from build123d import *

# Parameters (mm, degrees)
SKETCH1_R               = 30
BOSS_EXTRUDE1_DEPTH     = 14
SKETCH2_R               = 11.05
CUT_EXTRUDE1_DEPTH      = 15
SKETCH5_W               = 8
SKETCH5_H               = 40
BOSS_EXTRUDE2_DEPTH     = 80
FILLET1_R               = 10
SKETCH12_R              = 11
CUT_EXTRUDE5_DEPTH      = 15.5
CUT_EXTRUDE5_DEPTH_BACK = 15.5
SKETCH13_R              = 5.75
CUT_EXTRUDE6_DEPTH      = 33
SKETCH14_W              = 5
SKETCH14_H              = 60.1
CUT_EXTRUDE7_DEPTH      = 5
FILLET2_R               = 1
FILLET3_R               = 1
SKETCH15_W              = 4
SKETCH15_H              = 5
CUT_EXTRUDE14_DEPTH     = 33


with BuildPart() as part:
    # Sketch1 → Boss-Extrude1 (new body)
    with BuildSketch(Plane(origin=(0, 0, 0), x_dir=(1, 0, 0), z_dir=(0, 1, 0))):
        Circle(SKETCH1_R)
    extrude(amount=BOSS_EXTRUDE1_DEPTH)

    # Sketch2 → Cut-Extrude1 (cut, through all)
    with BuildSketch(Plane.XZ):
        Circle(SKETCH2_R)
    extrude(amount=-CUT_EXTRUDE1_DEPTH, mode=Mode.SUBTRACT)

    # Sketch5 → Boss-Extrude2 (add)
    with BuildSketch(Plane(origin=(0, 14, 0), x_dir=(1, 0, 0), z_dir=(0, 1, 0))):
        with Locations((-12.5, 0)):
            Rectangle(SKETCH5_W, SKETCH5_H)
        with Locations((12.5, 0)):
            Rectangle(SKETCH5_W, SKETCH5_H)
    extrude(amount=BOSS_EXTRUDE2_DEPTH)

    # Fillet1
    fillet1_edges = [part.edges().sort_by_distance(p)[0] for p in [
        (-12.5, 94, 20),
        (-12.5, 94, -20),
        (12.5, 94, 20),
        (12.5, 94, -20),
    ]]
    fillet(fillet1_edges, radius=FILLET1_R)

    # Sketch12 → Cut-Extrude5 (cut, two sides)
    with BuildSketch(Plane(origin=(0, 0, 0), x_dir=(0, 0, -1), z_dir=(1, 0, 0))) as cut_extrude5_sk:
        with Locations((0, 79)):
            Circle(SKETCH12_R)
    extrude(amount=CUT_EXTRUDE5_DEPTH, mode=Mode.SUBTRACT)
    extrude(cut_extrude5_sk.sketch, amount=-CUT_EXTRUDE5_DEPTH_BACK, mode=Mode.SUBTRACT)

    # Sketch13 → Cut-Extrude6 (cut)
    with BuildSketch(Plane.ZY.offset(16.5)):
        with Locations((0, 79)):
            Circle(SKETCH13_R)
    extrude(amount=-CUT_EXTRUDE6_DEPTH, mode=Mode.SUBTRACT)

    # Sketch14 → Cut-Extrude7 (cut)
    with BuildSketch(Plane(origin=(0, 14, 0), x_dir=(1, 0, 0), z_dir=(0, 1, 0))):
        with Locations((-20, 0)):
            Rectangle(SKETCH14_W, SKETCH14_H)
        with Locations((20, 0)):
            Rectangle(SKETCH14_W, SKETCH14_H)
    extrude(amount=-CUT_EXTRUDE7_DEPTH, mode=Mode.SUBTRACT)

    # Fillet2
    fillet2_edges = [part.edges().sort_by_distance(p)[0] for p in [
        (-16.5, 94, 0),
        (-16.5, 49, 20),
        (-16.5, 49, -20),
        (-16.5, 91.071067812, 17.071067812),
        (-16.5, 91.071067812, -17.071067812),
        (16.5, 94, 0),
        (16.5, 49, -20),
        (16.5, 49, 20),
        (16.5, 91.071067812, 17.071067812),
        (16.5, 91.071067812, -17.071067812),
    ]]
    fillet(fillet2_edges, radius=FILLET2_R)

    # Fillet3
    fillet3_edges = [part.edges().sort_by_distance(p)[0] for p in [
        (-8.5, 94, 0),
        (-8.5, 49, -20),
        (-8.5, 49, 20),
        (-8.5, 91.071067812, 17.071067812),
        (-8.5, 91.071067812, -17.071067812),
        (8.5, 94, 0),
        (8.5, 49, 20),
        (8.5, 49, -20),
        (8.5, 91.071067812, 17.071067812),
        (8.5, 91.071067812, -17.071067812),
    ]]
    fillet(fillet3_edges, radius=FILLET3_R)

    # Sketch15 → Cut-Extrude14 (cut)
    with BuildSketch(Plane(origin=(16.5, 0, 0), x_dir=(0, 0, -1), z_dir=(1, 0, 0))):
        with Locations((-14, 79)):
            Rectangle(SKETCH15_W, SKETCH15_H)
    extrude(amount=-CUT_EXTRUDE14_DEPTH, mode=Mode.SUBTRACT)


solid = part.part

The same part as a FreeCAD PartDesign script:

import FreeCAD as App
import Part
import Sketcher
Q = App.Units.Quantity


def edges_at(feature, points):
    """Names of the edges that pass closest to the given points."""
    edges = feature.Shape.Edges
    near = lambda p: min(range(len(edges)), key=lambda i: edges[i].distToShape(Part.Vertex(*p))[0])
    return sorted({f"Edge{near(p) + 1}" for p in points})

doc = App.newDocument("Part")
params = doc.addObject("Spreadsheet::Sheet", "Params")
for row, (alias, value) in enumerate([
    ("sketch1_diameter", "60 mm"),
    ("pad1_length", "14 mm"),
    ("sketch2_diameter", "22.1 mm"),
    ("sketch3_width", "8 mm"),
    ("sketch3_height", "40 mm"),
    ("pad2_length", "80 mm"),
    ("fillet_radius", "10 mm"),
    ("sketch4_diameter", "22 mm"),
    ("pocket2_length", "15.5 mm"),
    ("pocket2_length2", "15.5 mm"),
    ("sketch5_diameter", "11.5 mm"),
    ("pocket3_length", "33 mm"),
    ("sketch6_width", "5 mm"),
    ("sketch6_height", "60.1 mm"),
    ("pocket4_length", "5 mm"),
    ("fillet2_radius", "1 mm"),
    ("fillet3_radius", "1 mm"),
    ("sketch7_width", "5 mm"),
    ("sketch7_height", "4 mm"),
    ("pocket5_length", "33 mm"),
], start=1):
    params.set(f"A{row}", alias)
    params.set(f"B{row}", "=" + value)
    params.setAlias(f"B{row}", alias)

body = doc.addObject("PartDesign::Body", "Body")

# Sketch on XZ plane
sketch1 = body.newObject("Sketcher::SketchObject", "Sketch")
sketch1.AttachmentSupport = (doc.getObject("XZ_Plane"), [""])
sketch1.MapMode = "FlatFace"
sketch1.addGeometry(Part.Circle(App.Vector(0, 0, 0), App.Vector(0, 0, 1), 30), False)
sketch1.addConstraint([
    Sketcher.Constraint("Coincident", 0, 3, -1, 1),
    Sketcher.Constraint("Diameter", 0, Q("60 mm")),
])
sketch1.setExpression("Constraints[1]", "Params.sketch1_diameter")
pad1 = body.newObject("PartDesign::Pad", "Pad")
pad1.Profile = sketch1
pad1.setExpression("Length", "Params.pad1_length")
pad1.Reversed = True

# Sketch on XZ plane
sketch2 = body.newObject("Sketcher::SketchObject", "Sketch001")
sketch2.AttachmentSupport = (doc.getObject("XZ_Plane"), [""])
sketch2.MapMode = "FlatFace"
sketch2.addGeometry(Part.Circle(App.Vector(0, 0, 0), App.Vector(0, 0, 1), 11), False)
sketch2.addConstraint([
    Sketcher.Constraint("Coincident", 0, 3, -1, 1),
    Sketcher.Constraint("Diameter", 0, Q("22.1 mm")),
])
sketch2.setExpression("Constraints[1]", "Params.sketch2_diameter")
pocket1 = body.newObject("PartDesign::Pocket", "Pocket")
pocket1.Profile = sketch2
pocket1.Type = "ThroughAll"

# Sketch on XZ plane
sketch3 = body.newObject("Sketcher::SketchObject", "Sketch002")
sketch3.AttachmentSupport = (doc.getObject("XZ_Plane"), [""])
sketch3.MapMode = "FlatFace"
sketch3.AttachmentOffset = App.Placement(App.Vector(0, 0, -14), App.Rotation())
sketch3.addGeometry([
    Part.LineSegment(App.Vector(-16, -20, 0), App.Vector(-16, 20, 0)),  # 0
    Part.LineSegment(App.Vector(-16, 20, 0), App.Vector(-8, 20, 0)),  # 1
    Part.LineSegment(App.Vector(-8, 20, 0), App.Vector(-8, -20, 0)),  # 2
    Part.LineSegment(App.Vector(-8, -20, 0), App.Vector(-16, -20, 0)),  # 3
    Part.LineSegment(App.Vector(8, -20, 0), App.Vector(8, 20, 0)),  # 4
    Part.LineSegment(App.Vector(8, 20, 0), App.Vector(16, 20, 0)),  # 5
    Part.LineSegment(App.Vector(16, 20, 0), App.Vector(16, -20, 0)),  # 6
    Part.LineSegment(App.Vector(16, -20, 0), App.Vector(8, -20, 0)),  # 7
], False)
sketch3.addConstraint([
    Sketcher.Constraint("Coincident", 0, 2, 1, 1),
    Sketcher.Constraint("Coincident", 1, 2, 2, 1),
    Sketcher.Constraint("Coincident", 2, 2, 3, 1),
    Sketcher.Constraint("Coincident", 3, 2, 0, 1),
    Sketcher.Constraint("Coincident", 4, 2, 5, 1),
    Sketcher.Constraint("Coincident", 5, 2, 6, 1),
    Sketcher.Constraint("Coincident", 6, 2, 7, 1),
    Sketcher.Constraint("Coincident", 7, 2, 4, 1),
    Sketcher.Constraint("Vertical", 0),
    Sketcher.Constraint("Horizontal", 1),
    Sketcher.Constraint("Vertical", 2),
    Sketcher.Constraint("Horizontal", 3),
    Sketcher.Constraint("Vertical", 4),
    Sketcher.Constraint("Horizontal", 5),
    Sketcher.Constraint("Vertical", 6),
    Sketcher.Constraint("Horizontal", 7),
    Sketcher.Constraint("Symmetric", 2, 2, 4, 2, -1, 1),
    Sketcher.Constraint("Symmetric", 0, 2, 6, 2, -1, 1),
    Sketcher.Constraint("Horizontal", 1, 2, 4, 2),
    Sketcher.Constraint("DistanceX", 1, 1, 1, 2, Q("8 mm")),
    Sketcher.Constraint("DistanceY", 0, 1, 0, 2, Q("40 mm")),
    Sketcher.Constraint("DistanceX", 1, 2, 4, 2, Q("17 mm")),
])
sketch3.setExpression("Constraints[19]", "Params.sketch3_width")
sketch3.setExpression("Constraints[20]", "Params.sketch3_height")
pad2 = body.newObject("PartDesign::Pad", "Pad001")
pad2.Profile = sketch3
pad2.setExpression("Length", "Params.pad2_length")
pad2.Reversed = True
doc.recompute()

fillet = body.newObject("PartDesign::Fillet", "Fillet")
fillet.Base = (pad2, edges_at(pad2, [
    (-12.5, 94, 20),
    (-12.5, 94, -20),
    (12.5, 94, 20),
    (12.5, 94, -20),
]))
fillet.setExpression("Radius", "Params.fillet_radius")

# Sketch on YZ plane
sketch4 = body.newObject("Sketcher::SketchObject", "Sketch003")
sketch4.AttachmentSupport = (doc.getObject("YZ_Plane"), [""])
sketch4.MapMode = "FlatFace"
sketch4.addGeometry(Part.Circle(App.Vector(79, 0, 0), App.Vector(0, 0, 1), 11), False)
sketch4.addConstraint([
    Sketcher.Constraint("PointOnObject", 0, 3, -1),
    Sketcher.Constraint("Diameter", 0, Q("22 mm")),
    Sketcher.Constraint("DistanceX", -1, 1, 0, 3, Q("79 mm")),
])
sketch4.setExpression("Constraints[1]", "Params.sketch4_diameter")
pocket2 = body.newObject("PartDesign::Pocket", "Pocket001")
pocket2.Profile = sketch4
pocket2.Type = "TwoLengths"
pocket2.setExpression("Length", "Params.pocket2_length")
pocket2.setExpression("Length2", "Params.pocket2_length2")
pocket2.Reversed = True

# Sketch on YZ plane
sketch5 = body.newObject("Sketcher::SketchObject", "Sketch004")
sketch5.AttachmentSupport = (doc.getObject("YZ_Plane"), [""])
sketch5.MapMode = "FlatFace"
sketch5.AttachmentOffset = App.Placement(App.Vector(0, 0, -16.5), App.Rotation())
sketch5.addGeometry(Part.Circle(App.Vector(79, 0, 0), App.Vector(0, 0, 1), 6), False)
sketch5.addConstraint([
    Sketcher.Constraint("PointOnObject", 0, 3, -1),
    Sketcher.Constraint("Diameter", 0, Q("11.5 mm")),
    Sketcher.Constraint("DistanceX", -1, 1, 0, 3, Q("79 mm")),
])
sketch5.setExpression("Constraints[1]", "Params.sketch5_diameter")
pocket3 = body.newObject("PartDesign::Pocket", "Pocket002")
pocket3.Profile = sketch5
pocket3.setExpression("Length", "Params.pocket3_length")
pocket3.Reversed = True

# Sketch on XZ plane
sketch6 = body.newObject("Sketcher::SketchObject", "Sketch005")
sketch6.AttachmentSupport = (doc.getObject("XZ_Plane"), [""])
sketch6.MapMode = "FlatFace"
sketch6.AttachmentOffset = App.Placement(App.Vector(0, 0, -14), App.Rotation())
sketch6.addGeometry([
    Part.LineSegment(App.Vector(-22, -30, 0), App.Vector(-22, 30, 0)),  # 0
    Part.LineSegment(App.Vector(-22, 30, 0), App.Vector(-18, 30, 0)),  # 1
    Part.LineSegment(App.Vector(-18, 30, 0), App.Vector(-18, -30, 0)),  # 2
    Part.LineSegment(App.Vector(-18, -30, 0), App.Vector(-22, -30, 0)),  # 3
    Part.LineSegment(App.Vector(18, -30, 0), App.Vector(18, 30, 0)),  # 4
    Part.LineSegment(App.Vector(18, 30, 0), App.Vector(22, 30, 0)),  # 5
    Part.LineSegment(App.Vector(22, 30, 0), App.Vector(22, -30, 0)),  # 6
    Part.LineSegment(App.Vector(22, -30, 0), App.Vector(18, -30, 0)),  # 7
], False)
sketch6.addConstraint([
    Sketcher.Constraint("Coincident", 0, 2, 1, 1),
    Sketcher.Constraint("Coincident", 1, 2, 2, 1),
    Sketcher.Constraint("Coincident", 2, 2, 3, 1),
    Sketcher.Constraint("Coincident", 3, 2, 0, 1),
    Sketcher.Constraint("Coincident", 4, 2, 5, 1),
    Sketcher.Constraint("Coincident", 5, 2, 6, 1),
    Sketcher.Constraint("Coincident", 6, 2, 7, 1),
    Sketcher.Constraint("Coincident", 7, 2, 4, 1),
    Sketcher.Constraint("Vertical", 0),
    Sketcher.Constraint("Horizontal", 1),
    Sketcher.Constraint("Vertical", 2),
    Sketcher.Constraint("Horizontal", 3),
    Sketcher.Constraint("Vertical", 4),
    Sketcher.Constraint("Horizontal", 5),
    Sketcher.Constraint("Vertical", 6),
    Sketcher.Constraint("Horizontal", 7),
    Sketcher.Constraint("Symmetric", 2, 2, 4, 2, -1, 1),
    Sketcher.Constraint("Symmetric", 0, 2, 6, 2, -1, 1),
    Sketcher.Constraint("Horizontal", 1, 2, 4, 2),
    Sketcher.Constraint("DistanceX", 1, 1, 1, 2, Q("5 mm")),
    Sketcher.Constraint("DistanceY", 0, 1, 0, 2, Q("60.1 mm")),
    Sketcher.Constraint("DistanceX", 1, 2, 4, 2, Q("35 mm")),
])
sketch6.setExpression("Constraints[19]", "Params.sketch6_width")
sketch6.setExpression("Constraints[20]", "Params.sketch6_height")
pocket4 = body.newObject("PartDesign::Pocket", "Pocket003")
pocket4.Profile = sketch6
pocket4.setExpression("Length", "Params.pocket4_length")
pocket4.Reversed = True
doc.recompute()

fillet2 = body.newObject("PartDesign::Fillet", "Fillet001")
fillet2.Base = (pocket4, edges_at(pocket4, [
    (-16.5, 94, 0),
    (-16.5, 49, 20),
    (-16.5, 49, -20),
    (-16.5, 91.071, 17.071),
    (-16.5, 91.071, -17.071),
    (16.5, 94, 0),
    (16.5, 49, -20),
    (16.5, 49, 20),
    (16.5, 91.071, 17.071),
    (16.5, 91.071, -17.071),
]))
fillet2.setExpression("Radius", "Params.fillet2_radius")
doc.recompute()

fillet3 = body.newObject("PartDesign::Fillet", "Fillet002")
fillet3.Base = (fillet2, edges_at(fillet2, [
    (-8.5, 94, 0),
    (-8.5, 49, -20),
    (-8.5, 49, 20),
    (-8.5, 91.071, 17.071),
    (-8.5, 91.071, -17.071),
    (8.5, 94, 0),
    (8.5, 49, 20),
    (8.5, 49, -20),
    (8.5, 91.071, 17.071),
    (8.5, 91.071, -17.071),
]))
fillet3.setExpression("Radius", "Params.fillet3_radius")

# Sketch on YZ plane
sketch7 = body.newObject("Sketcher::SketchObject", "Sketch006")
sketch7.AttachmentSupport = (doc.getObject("YZ_Plane"), [""])
sketch7.MapMode = "FlatFace"
sketch7.AttachmentOffset = App.Placement(App.Vector(0, 0, 16.5), App.Rotation())
sketch7.addGeometry([
    Part.LineSegment(App.Vector(81.5, 16, 0), App.Vector(76.5, 16, 0)),
    Part.LineSegment(App.Vector(76.5, 16, 0), App.Vector(76.5, 12, 0)),
    Part.LineSegment(App.Vector(76.5, 12, 0), App.Vector(81.5, 12, 0)),
    Part.LineSegment(App.Vector(81.5, 12, 0), App.Vector(81.5, 16, 0)),
], False)
sketch7.addConstraint([
    Sketcher.Constraint("Coincident", 0, 2, 1, 1),
    Sketcher.Constraint("Coincident", 1, 2, 2, 1),
    Sketcher.Constraint("Coincident", 2, 2, 3, 1),
    Sketcher.Constraint("Coincident", 3, 2, 0, 1),
    Sketcher.Constraint("Horizontal", 0),
    Sketcher.Constraint("Vertical", 1),
    Sketcher.Constraint("Horizontal", 2),
    Sketcher.Constraint("Vertical", 3),
    Sketcher.Constraint("DistanceX", 0, 2, 0, 1, Q("5 mm")),
    Sketcher.Constraint("DistanceY", 1, 2, 1, 1, Q("4 mm")),
    Sketcher.Constraint("DistanceY", -1, 1, 0, 2, Q("16 mm")),
    Sketcher.Constraint("DistanceX", -1, 1, 0, 2, Q("76.5 mm")),
])
sketch7.setExpression("Constraints[8]", "Params.sketch7_width")
sketch7.setExpression("Constraints[9]", "Params.sketch7_height")
pocket5 = body.newObject("PartDesign::Pocket", "Pocket004")
pocket5.Profile = sketch7
pocket5.setExpression("Length", "Params.pocket5_length")

doc.recompute()
